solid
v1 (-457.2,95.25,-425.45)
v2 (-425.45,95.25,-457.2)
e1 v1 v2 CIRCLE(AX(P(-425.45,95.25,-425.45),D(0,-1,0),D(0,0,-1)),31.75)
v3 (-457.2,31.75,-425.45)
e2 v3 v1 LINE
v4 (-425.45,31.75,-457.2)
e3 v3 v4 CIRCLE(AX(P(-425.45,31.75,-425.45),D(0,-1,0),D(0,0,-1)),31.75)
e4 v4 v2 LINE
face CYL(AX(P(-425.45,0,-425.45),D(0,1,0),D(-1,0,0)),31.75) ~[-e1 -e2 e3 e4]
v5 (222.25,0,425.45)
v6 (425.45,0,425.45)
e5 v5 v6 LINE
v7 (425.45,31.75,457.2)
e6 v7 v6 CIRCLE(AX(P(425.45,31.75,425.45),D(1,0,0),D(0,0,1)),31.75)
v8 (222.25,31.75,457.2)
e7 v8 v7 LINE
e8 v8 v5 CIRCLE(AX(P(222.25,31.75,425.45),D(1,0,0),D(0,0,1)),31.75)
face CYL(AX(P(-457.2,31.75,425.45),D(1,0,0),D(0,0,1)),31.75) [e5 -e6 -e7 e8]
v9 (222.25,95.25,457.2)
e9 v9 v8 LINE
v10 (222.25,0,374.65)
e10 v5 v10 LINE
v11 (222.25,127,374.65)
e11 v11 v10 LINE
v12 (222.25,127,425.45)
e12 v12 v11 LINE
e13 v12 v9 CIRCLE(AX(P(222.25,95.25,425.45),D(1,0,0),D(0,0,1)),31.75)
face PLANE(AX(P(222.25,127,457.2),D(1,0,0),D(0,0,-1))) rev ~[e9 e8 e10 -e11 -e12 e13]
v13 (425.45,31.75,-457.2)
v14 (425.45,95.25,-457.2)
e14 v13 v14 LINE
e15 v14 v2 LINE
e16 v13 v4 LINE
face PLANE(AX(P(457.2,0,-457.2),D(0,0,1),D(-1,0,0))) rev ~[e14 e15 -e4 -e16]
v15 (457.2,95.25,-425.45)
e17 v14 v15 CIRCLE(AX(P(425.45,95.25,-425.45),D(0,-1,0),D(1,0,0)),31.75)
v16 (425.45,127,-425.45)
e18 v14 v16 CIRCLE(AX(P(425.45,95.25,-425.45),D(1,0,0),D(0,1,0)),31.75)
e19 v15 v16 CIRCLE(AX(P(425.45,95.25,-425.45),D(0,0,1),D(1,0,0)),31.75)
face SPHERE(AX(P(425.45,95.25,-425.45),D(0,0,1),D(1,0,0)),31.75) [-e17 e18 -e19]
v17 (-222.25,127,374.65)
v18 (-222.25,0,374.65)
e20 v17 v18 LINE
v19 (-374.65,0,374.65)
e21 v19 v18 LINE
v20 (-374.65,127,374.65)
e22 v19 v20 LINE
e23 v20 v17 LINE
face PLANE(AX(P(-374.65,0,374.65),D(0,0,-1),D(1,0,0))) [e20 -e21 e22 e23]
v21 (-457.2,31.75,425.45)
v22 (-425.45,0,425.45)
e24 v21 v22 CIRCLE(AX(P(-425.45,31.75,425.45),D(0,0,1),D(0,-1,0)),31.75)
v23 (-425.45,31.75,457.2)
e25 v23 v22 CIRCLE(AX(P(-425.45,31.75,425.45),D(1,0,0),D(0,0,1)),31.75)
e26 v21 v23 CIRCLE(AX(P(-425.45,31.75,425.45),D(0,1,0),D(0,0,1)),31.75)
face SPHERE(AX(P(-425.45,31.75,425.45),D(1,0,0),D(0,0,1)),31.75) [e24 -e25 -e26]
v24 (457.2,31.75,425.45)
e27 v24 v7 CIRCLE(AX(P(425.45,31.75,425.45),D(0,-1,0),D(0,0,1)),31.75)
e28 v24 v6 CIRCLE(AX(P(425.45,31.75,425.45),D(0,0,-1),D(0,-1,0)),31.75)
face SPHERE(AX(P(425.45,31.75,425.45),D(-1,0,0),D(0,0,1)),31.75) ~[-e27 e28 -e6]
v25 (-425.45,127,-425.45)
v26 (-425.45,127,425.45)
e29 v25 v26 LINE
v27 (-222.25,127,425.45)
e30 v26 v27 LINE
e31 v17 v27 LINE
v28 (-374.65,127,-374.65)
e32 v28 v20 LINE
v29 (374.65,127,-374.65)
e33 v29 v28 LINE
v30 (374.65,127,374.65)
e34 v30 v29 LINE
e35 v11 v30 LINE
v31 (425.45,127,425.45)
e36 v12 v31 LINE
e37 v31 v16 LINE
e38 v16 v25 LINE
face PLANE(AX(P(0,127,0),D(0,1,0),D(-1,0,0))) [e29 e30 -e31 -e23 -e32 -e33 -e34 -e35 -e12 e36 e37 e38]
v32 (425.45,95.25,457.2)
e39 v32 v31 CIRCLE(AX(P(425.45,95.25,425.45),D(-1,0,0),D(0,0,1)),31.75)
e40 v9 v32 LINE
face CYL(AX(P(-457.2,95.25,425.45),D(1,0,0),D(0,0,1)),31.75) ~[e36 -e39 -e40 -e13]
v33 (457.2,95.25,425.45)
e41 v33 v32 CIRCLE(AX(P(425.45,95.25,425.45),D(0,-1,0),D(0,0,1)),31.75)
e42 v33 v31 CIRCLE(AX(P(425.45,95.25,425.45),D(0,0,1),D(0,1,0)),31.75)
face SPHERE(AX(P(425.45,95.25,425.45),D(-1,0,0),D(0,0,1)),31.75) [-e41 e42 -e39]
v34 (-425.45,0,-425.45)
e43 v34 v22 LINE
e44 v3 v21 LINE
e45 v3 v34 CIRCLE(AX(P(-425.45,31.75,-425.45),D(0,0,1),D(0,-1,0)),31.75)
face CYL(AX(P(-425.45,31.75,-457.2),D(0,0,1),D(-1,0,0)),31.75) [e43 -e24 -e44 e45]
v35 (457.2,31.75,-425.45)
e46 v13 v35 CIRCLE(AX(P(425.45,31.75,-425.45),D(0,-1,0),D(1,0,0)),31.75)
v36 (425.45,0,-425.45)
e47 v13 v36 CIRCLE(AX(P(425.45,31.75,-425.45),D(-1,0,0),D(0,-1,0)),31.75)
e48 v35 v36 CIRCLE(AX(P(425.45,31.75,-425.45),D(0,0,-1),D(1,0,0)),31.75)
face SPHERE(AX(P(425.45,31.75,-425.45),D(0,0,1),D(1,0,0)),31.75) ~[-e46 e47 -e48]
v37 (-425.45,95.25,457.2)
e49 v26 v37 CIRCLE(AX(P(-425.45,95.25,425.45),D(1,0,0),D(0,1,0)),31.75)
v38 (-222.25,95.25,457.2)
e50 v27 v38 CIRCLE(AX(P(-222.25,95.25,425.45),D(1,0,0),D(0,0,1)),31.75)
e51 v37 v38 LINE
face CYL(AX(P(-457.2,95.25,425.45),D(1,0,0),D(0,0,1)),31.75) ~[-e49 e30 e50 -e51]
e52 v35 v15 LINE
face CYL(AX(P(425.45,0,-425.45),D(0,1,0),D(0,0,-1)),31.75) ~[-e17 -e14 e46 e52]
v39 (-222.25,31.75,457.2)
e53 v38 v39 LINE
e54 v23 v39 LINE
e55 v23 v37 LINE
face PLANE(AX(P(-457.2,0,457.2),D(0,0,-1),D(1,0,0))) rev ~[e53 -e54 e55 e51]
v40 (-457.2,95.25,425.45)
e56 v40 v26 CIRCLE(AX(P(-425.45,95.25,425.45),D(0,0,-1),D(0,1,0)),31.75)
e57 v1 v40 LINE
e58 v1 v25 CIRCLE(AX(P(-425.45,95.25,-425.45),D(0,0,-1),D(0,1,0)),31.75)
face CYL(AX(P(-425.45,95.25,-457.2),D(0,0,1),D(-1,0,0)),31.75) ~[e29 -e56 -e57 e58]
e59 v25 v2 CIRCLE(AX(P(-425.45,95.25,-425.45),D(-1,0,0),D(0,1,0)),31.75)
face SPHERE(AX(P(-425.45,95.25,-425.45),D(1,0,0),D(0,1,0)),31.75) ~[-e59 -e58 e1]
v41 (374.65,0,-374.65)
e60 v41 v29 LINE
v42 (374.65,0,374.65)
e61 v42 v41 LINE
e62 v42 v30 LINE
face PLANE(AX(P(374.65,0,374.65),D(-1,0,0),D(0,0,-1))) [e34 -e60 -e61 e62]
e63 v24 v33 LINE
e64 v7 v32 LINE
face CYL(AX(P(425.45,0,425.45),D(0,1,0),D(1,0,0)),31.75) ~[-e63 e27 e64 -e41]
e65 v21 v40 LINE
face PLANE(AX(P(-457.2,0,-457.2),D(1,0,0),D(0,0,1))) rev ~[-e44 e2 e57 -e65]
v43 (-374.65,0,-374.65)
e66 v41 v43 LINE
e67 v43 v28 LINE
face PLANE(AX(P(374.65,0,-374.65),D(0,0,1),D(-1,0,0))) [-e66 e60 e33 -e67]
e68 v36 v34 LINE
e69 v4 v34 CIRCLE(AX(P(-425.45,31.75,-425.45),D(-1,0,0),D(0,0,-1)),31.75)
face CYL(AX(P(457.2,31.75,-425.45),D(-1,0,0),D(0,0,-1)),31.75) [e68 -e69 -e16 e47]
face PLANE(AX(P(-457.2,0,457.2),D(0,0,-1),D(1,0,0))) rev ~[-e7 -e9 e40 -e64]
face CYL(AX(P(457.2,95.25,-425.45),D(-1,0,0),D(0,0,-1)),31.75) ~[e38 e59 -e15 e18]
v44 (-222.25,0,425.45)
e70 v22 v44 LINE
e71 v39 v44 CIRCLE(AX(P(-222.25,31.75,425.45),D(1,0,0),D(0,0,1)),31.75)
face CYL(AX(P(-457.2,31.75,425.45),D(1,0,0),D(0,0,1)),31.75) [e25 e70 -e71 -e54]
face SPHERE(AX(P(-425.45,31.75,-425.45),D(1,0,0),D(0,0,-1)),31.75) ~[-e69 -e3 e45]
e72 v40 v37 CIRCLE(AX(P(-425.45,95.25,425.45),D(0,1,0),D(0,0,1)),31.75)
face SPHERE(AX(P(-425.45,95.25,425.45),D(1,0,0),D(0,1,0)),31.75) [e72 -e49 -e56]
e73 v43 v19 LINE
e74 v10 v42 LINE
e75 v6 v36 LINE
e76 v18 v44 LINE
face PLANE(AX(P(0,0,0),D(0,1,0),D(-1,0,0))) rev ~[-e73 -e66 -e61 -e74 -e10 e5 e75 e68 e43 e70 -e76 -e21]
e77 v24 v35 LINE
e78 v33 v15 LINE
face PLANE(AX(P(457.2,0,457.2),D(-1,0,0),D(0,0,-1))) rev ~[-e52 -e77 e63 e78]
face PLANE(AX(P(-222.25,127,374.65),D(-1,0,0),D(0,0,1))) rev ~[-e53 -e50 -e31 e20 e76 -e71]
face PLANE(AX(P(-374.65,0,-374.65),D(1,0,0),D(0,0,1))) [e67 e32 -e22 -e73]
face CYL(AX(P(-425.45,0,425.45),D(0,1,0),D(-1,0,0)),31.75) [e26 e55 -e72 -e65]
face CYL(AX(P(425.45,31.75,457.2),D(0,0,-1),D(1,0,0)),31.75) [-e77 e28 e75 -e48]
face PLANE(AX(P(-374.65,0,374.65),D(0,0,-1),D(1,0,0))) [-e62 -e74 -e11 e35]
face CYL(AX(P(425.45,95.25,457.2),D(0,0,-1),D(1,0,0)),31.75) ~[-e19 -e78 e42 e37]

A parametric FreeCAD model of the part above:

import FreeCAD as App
import Part
import Sketcher
from FreeCAD import Vector
Q = App.Units.Quantity


def edges_at(feature, points):
    """Names of the edges that pass closest to the given points."""
    edges = feature.Shape.Edges
    near = lambda p: min(range(len(edges)), key=lambda i: edges[i].distToShape(Part.Vertex(*p))[0])
    return sorted({f"Edge{near(p) + 1}" for p in points})


def add_polygon(sketch, points):
    """Adds a closed chain of lines whose ends are joined by coincident constraints."""
    first, n = sketch.GeometryCount, len(points)
    for a, b in zip(points, points[1:] + points[:1]):
        sketch.addGeometry(Part.LineSegment(App.Vector(*a, 0), App.Vector(*b, 0)), False)
    for i in range(n):
        sketch.addConstraint(Sketcher.Constraint("Coincident", first + i, 2, first + (i + 1) % n, 1))

doc = App.newDocument("Part")
body = doc.addObject("PartDesign::Body", "Body")

sketch1 = body.newObject("Sketcher::SketchObject", "Sketch")
sketch1.AttachmentSupport = (doc.getObject("XZ_Plane"), [""])
sketch1.MapMode = "FlatFace"
add_polygon(sketch1, [(-457, -457), (-457, 457), (457, 457), (457, -457)])
add_polygon(sketch1, [(375, 375), (-375, 375), (-375, -375), (375, -375)])
sketch1.addConstraint([
    Sketcher.Constraint("Vertical", 0),
    Sketcher.Constraint("Horizontal", 1),
    Sketcher.Constraint("Vertical", 2),
    Sketcher.Constraint("Horizontal", 3),
    Sketcher.Constraint("Horizontal", 4),
    Sketcher.Constraint("Vertical", 5),
    Sketcher.Constraint("Horizontal", 6),
    Sketcher.Constraint("Vertical", 7),
    Sketcher.Constraint("Symmetric", 0, 2, 2, 2, -1, 1),
    Sketcher.Constraint("Symmetric", 4, 2, 6, 2, -1, 1),
    Sketcher.Constraint("Equal", 3, 0),
    Sketcher.Constraint("Equal", 6, 5),
    Sketcher.Constraint("DistanceX", 4, 2, 4, 1, Q("29.5 in")),
    Sketcher.Constraint("DistanceX", 1, 1, 1, 2, Q("36 in")),
])
pad1 = body.newObject("PartDesign::Pad", "Pad")
pad1.Profile = sketch1
pad1.Length = Q("5 in")
pad1.Reversed = True
doc.recompute()

fillet = body.newObject("PartDesign::Fillet", "Fillet")
fillet.Base = (pad1, edges_at(pad1, [
    (0, 127, 457.2),
    (0, 0, 457.2),
    (457.2, 63.5, 457.2),
    (457.2, 127, 0),
    (457.2, 0, 0),
    (457.2, 63.5, -457.2),
    (0, 127, -457.2),
    (-457.2, 127, 0),
    (-457.2, 63.5, 457.2),
    (0, 0, -457.2),
    (-457.2, 63.5, -457.2),
    (-457.2, 0, 0),
]))
fillet.Radius = Q("1.25 in")

sketch2 = body.newObject("Sketcher::SketchObject", "Sketch001")
sketch2.AttachmentSupport = (doc.getObject("XZ_Plane"), [""])
sketch2.MapMode = "FlatFace"
sketch2.AttachmentOffset = App.Placement(Vector(0, 0, -5 * 25.4), App.Rotation())
add_polygon(sketch2, [(-222, 375), (-222, 457), (222, 457), (222, 375)])
sketch2.addConstraint([
    Sketcher.Constraint("Vertical", 0),
    Sketcher.Constraint("Horizontal", 1),
    Sketcher.Constraint("Vertical", 2),
    Sketcher.Constraint("Horizontal", 3),
    Sketcher.Constraint("DistanceX", 1, 1, 1, 2, Q("17.5 in")),
    Sketcher.Constraint("DistanceY", -1, 1, 0, 2, Q("18 in")),
    Sketcher.Constraint("DistanceY", 0, 1, 0, 2, Q("3.25 in")),
    Sketcher.Constraint("DistanceX", 0, 2, -1, 1, Q("8.75 in")),
])
pocket1 = body.newObject("PartDesign::Pocket", "Pocket")
pocket1.Profile = sketch2
pocket1.Type = "ThroughAll"
pocket1.Reversed = True

doc.recompute()
